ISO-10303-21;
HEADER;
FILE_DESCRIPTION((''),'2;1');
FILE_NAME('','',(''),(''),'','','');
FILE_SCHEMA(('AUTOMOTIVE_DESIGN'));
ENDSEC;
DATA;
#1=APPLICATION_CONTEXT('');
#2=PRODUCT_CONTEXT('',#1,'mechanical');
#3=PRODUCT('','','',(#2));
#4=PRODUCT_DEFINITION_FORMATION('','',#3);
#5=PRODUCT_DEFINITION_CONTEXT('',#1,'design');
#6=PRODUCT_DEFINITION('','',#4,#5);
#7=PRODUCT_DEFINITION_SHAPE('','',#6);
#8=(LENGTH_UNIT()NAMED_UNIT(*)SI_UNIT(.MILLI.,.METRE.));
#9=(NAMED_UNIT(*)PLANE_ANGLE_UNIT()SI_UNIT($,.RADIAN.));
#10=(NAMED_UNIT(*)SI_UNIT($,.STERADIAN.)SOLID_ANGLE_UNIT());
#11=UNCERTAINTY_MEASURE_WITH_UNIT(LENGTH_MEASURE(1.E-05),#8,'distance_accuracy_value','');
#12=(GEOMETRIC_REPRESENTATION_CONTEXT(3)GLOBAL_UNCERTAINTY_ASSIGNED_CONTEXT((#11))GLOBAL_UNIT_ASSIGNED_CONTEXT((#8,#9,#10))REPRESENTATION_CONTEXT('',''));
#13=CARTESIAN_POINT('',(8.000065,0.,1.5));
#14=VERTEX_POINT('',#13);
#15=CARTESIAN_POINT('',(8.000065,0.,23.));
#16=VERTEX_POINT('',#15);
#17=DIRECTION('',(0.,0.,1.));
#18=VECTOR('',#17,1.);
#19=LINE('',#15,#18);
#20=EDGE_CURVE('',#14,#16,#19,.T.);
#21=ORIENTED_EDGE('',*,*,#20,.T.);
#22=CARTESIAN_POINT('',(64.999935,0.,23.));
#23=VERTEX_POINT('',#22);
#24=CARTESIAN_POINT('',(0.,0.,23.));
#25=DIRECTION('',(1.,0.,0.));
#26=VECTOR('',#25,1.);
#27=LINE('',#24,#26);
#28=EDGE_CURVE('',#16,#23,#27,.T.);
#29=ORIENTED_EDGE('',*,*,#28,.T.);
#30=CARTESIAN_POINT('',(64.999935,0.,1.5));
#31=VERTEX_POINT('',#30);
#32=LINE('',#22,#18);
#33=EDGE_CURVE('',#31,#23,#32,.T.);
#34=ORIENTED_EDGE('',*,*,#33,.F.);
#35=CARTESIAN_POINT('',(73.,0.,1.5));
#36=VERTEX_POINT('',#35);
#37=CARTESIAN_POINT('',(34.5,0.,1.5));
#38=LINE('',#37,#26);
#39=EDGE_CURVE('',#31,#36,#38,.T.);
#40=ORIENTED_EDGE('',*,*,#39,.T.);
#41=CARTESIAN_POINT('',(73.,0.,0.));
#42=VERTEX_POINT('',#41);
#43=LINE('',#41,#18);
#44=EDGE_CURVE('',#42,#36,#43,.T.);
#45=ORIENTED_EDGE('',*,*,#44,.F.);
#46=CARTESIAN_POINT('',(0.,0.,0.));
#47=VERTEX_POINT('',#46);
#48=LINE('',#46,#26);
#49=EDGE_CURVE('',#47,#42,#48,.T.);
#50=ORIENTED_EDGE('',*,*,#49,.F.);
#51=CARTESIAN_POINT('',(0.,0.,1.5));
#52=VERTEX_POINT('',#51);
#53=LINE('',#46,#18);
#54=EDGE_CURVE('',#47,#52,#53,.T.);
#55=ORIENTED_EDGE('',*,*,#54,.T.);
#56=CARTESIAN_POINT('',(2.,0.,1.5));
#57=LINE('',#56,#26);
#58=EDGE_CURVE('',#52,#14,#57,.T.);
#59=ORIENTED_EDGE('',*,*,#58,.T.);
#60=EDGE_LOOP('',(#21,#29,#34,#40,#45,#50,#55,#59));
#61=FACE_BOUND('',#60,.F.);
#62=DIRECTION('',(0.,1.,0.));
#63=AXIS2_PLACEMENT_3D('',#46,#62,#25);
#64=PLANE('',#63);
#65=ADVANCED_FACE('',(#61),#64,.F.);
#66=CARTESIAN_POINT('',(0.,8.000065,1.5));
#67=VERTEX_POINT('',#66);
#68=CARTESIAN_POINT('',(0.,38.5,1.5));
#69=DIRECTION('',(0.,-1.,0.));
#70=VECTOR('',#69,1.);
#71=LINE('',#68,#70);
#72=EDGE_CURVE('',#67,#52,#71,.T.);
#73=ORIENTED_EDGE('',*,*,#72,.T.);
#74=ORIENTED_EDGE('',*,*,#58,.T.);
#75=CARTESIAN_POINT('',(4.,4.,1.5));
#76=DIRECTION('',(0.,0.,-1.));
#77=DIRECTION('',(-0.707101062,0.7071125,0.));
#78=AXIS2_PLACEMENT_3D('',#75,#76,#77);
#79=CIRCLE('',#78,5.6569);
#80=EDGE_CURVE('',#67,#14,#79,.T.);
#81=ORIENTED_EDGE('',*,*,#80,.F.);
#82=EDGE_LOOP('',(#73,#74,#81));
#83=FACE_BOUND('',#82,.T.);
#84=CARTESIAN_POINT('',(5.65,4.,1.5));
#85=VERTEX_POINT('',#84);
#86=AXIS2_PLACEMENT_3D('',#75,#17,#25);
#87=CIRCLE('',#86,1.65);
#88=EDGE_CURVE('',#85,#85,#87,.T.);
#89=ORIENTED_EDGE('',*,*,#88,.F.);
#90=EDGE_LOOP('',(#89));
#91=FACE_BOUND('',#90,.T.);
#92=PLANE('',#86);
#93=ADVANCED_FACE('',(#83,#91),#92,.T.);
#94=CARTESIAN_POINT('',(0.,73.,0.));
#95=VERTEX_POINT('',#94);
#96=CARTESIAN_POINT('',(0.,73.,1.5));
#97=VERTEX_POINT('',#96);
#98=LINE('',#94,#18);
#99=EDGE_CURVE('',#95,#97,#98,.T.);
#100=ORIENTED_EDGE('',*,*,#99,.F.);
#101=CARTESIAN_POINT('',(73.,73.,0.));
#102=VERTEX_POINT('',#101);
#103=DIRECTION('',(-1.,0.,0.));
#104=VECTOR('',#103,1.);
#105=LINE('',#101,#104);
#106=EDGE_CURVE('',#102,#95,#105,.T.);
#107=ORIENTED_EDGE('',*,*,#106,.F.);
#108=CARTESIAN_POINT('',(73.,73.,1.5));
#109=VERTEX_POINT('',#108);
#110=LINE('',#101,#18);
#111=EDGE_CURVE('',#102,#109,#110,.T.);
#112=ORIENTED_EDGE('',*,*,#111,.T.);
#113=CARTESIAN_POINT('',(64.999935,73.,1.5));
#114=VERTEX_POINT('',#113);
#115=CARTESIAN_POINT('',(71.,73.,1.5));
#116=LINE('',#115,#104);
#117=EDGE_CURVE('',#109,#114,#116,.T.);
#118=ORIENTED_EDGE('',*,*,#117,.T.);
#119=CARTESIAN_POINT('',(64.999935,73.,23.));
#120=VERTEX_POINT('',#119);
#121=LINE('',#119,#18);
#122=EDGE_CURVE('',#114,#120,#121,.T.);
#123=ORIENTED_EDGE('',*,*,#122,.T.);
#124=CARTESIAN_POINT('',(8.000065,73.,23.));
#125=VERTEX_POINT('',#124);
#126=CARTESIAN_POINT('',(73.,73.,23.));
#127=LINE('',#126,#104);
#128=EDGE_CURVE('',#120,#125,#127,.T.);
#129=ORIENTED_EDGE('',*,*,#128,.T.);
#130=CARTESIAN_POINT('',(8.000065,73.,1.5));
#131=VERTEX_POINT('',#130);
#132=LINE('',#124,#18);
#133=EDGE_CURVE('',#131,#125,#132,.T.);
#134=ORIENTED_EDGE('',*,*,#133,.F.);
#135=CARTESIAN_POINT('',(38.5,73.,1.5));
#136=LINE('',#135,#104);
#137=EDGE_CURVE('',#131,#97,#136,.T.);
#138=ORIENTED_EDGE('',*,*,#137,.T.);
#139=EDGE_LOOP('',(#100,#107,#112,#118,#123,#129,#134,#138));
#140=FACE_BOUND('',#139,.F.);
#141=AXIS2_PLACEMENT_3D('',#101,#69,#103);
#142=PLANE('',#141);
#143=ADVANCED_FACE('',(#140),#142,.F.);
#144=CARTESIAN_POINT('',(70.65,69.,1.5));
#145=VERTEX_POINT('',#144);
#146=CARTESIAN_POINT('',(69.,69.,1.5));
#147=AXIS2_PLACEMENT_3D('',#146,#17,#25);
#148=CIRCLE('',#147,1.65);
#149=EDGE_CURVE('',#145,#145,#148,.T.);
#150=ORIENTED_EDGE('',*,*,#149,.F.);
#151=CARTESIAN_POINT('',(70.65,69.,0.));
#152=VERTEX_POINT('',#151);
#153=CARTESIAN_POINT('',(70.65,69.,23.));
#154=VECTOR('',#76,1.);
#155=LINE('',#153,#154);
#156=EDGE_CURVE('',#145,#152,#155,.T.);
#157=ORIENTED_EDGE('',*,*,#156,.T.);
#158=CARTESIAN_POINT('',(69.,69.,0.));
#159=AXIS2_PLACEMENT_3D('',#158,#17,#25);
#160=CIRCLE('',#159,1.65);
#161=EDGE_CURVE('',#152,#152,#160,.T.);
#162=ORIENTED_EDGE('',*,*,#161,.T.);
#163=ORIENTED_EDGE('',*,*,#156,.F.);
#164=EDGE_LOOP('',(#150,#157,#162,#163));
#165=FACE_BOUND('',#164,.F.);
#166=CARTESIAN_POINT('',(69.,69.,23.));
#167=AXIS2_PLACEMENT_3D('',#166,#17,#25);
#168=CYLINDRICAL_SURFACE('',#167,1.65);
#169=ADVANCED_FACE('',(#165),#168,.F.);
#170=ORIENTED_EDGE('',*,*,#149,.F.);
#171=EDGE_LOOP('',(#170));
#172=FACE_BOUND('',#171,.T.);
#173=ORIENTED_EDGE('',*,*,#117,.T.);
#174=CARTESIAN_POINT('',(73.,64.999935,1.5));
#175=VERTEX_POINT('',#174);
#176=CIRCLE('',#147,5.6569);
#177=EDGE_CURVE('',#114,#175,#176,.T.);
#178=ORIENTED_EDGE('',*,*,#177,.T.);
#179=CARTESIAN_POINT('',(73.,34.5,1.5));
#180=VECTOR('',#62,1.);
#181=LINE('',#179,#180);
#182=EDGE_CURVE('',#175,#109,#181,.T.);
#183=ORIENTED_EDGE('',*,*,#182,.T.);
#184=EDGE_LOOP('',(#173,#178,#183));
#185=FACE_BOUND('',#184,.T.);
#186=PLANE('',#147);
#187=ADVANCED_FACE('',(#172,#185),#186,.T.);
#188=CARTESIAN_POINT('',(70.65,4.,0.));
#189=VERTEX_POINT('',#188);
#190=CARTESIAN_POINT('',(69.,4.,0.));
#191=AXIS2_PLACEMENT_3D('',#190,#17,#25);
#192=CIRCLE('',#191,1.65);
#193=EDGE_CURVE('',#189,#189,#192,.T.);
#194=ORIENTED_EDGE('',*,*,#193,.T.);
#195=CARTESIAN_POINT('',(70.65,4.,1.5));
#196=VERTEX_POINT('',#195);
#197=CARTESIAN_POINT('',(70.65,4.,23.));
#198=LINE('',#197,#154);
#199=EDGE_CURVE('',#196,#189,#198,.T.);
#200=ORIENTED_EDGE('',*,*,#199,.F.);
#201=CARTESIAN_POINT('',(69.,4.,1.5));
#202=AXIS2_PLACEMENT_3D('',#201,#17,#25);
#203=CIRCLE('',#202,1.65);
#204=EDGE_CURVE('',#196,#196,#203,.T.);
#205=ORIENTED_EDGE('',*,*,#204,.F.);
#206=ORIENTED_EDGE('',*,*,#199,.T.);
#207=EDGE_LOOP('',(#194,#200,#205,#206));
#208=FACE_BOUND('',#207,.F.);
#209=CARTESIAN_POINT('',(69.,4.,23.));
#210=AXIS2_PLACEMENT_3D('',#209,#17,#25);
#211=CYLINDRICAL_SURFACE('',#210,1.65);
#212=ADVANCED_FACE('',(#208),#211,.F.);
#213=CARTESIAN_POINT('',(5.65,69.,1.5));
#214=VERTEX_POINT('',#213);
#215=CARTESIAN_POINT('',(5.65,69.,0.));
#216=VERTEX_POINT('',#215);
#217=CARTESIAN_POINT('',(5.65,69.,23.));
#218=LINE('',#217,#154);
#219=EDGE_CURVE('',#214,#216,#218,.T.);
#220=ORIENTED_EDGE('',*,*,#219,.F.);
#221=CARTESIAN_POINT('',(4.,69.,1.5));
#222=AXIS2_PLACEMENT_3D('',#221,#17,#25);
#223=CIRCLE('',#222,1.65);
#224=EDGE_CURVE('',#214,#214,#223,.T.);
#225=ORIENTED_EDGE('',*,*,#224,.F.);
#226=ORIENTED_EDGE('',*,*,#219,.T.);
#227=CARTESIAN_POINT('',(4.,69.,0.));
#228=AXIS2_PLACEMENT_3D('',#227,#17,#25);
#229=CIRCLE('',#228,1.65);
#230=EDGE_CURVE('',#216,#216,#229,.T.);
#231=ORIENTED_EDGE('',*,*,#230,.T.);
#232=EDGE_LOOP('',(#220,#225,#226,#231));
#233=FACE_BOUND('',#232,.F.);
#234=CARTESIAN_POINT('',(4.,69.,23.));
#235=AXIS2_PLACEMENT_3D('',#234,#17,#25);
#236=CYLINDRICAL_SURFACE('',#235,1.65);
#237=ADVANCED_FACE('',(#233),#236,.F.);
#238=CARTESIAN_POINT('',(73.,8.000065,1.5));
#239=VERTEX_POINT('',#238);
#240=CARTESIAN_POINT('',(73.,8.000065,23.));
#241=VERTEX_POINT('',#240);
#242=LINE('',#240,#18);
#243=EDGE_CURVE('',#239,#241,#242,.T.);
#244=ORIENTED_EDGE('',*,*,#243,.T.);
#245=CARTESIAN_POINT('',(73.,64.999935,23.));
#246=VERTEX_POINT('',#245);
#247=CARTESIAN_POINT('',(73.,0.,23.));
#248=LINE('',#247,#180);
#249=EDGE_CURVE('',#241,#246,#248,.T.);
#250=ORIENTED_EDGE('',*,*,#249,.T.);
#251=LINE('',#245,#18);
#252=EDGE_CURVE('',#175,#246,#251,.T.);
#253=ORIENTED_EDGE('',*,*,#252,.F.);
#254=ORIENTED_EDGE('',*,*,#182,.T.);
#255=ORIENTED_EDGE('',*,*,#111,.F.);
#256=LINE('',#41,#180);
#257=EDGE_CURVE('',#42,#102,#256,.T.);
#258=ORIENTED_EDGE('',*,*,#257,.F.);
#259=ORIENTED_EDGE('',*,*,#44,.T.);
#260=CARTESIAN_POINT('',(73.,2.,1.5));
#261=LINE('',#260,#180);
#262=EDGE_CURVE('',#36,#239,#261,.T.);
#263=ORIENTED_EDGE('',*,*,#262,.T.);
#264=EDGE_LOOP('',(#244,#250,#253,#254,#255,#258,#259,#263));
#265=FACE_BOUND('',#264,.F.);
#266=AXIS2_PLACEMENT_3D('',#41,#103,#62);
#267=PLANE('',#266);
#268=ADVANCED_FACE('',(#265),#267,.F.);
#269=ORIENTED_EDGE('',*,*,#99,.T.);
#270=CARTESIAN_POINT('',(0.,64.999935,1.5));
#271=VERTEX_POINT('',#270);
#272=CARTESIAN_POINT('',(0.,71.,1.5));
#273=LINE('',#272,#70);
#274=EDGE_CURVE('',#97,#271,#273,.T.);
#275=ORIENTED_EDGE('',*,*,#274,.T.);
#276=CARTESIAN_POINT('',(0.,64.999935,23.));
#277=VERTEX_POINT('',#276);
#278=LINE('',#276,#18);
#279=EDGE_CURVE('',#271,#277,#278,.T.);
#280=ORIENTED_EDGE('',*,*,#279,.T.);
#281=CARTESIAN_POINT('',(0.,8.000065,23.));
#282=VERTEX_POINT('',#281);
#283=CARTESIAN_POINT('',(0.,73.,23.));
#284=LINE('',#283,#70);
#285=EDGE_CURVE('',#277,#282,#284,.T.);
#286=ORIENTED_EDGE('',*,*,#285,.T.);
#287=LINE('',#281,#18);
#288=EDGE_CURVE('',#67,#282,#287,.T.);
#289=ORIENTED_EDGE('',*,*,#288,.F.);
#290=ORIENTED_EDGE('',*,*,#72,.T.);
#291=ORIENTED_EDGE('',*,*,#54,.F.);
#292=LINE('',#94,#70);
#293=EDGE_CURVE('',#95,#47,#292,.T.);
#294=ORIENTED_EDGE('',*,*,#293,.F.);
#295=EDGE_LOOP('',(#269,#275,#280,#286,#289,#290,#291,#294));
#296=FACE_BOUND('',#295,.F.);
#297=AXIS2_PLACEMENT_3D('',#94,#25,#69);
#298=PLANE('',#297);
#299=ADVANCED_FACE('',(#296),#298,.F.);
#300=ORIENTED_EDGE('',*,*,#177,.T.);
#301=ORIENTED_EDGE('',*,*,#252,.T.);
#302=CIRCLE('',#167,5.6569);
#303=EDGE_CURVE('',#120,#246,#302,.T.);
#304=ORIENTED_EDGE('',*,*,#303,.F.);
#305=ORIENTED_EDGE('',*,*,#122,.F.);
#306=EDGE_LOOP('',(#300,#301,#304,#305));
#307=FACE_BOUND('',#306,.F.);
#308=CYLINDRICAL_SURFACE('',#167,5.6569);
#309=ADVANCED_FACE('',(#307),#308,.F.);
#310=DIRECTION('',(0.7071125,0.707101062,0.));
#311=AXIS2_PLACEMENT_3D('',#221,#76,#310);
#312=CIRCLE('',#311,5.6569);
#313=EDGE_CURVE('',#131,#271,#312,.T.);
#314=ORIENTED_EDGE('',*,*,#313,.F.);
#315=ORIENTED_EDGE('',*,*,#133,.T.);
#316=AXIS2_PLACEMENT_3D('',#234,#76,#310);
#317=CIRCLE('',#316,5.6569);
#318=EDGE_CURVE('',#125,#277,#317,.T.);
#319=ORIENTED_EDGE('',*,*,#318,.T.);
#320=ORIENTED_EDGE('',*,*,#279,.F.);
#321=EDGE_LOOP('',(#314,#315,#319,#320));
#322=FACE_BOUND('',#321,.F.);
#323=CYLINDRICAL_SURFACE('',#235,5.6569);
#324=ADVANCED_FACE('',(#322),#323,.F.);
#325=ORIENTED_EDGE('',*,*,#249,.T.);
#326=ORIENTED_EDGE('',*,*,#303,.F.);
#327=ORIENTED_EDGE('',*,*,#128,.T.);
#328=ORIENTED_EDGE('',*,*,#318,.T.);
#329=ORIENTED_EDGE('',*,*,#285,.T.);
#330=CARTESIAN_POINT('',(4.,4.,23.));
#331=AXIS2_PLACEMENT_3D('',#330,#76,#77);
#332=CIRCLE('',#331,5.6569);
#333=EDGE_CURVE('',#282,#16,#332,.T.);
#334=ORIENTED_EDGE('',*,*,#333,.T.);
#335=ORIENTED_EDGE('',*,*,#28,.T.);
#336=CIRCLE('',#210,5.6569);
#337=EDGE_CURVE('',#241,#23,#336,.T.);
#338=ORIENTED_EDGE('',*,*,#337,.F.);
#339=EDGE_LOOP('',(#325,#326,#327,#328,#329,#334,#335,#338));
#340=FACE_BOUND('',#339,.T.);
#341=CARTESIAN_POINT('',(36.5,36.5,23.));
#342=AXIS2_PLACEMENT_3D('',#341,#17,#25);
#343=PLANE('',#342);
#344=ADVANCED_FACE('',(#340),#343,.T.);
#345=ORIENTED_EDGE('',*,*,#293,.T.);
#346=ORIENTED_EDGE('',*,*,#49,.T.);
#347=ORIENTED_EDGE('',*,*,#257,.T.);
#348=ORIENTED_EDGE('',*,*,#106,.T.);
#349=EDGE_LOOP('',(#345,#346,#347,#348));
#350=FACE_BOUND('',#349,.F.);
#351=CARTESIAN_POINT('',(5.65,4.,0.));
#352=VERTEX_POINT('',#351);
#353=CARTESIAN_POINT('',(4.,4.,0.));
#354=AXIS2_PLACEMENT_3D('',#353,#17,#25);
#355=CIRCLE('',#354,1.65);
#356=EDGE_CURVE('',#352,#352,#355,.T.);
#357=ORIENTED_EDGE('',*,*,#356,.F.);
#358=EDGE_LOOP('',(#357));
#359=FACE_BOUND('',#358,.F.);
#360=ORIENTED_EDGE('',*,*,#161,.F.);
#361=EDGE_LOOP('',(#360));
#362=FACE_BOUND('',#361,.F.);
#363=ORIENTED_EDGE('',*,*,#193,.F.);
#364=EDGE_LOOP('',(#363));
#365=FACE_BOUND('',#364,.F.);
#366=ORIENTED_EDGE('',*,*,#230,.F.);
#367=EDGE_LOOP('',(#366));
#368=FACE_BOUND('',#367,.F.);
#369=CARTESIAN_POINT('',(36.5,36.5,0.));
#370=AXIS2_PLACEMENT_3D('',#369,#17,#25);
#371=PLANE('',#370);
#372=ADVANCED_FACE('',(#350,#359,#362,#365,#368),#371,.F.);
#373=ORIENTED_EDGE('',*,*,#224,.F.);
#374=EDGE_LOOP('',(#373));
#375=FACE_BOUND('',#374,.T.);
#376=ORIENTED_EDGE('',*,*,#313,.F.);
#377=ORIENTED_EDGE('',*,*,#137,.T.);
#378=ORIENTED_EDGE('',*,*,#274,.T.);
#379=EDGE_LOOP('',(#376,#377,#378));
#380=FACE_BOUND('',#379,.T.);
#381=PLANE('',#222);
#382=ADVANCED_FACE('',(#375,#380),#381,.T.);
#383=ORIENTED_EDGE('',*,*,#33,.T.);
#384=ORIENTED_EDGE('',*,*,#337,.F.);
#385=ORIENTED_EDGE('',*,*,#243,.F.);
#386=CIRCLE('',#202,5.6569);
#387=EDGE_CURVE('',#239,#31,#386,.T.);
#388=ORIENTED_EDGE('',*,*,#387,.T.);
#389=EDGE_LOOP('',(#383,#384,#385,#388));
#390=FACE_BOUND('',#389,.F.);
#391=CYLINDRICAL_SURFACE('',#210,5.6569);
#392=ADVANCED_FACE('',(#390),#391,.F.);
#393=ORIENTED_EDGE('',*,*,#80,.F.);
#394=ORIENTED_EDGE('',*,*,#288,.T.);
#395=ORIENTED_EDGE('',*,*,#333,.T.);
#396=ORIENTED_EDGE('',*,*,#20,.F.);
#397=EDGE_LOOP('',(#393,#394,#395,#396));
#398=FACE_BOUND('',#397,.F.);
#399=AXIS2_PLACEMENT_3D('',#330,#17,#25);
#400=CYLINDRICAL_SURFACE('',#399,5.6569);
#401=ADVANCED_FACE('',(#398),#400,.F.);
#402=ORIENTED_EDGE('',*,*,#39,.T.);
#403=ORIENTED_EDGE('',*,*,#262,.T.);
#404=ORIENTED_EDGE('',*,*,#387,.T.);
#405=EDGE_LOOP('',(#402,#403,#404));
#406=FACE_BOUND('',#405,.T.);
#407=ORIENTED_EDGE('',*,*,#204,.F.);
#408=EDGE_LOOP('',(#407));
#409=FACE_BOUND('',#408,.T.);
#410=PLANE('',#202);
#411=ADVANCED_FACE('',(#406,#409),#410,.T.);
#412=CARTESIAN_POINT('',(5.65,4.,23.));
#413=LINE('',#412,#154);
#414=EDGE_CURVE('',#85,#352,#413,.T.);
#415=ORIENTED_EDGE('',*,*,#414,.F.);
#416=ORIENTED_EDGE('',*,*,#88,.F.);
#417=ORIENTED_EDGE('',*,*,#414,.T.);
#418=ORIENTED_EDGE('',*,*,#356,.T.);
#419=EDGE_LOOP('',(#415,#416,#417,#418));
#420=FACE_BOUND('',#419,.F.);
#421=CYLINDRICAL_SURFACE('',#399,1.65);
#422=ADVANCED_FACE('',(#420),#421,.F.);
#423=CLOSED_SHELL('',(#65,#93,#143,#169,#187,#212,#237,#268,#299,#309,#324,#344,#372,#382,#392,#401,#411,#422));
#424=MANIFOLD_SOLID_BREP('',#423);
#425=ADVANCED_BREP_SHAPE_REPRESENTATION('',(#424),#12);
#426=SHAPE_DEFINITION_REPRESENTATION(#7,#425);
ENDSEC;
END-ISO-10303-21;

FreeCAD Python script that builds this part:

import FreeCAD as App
import Part
import Sketcher
from FreeCAD import Vector


def add_polygon(sketch, points):
    """Adds a closed chain of lines whose ends are joined by coincident constraints."""
    first, n = sketch.GeometryCount, len(points)
    for a, b in zip(points, points[1:] + points[:1]):
        sketch.addGeometry(Part.LineSegment(App.Vector(*a, 0), App.Vector(*b, 0)), False)
    for i in range(n):
        sketch.addConstraint(Sketcher.Constraint("Coincident", first + i, 2, first + (i + 1) % n, 1))

doc = App.newDocument("Part")
body = doc.addObject("PartDesign::Body", "Body")

# Sketch on XY plane
sketch1 = body.newObject("Sketcher::SketchObject", "Sketch")
sketch1.AttachmentSupport = (doc.getObject("XY_Plane"), [""])
sketch1.MapMode = "FlatFace"
add_polygon(sketch1, [(0, 73), (0, 0), (73, 0), (73, 73)])  # lines 0-3
sketch1.addConstraint([
    Sketcher.Constraint("Vertical", 0),
    Sketcher.Constraint("Horizontal", 1),
    Sketcher.Constraint("Vertical", 2),
    Sketcher.Constraint("Horizontal", 3),
    Sketcher.Constraint("Coincident", 0, 2, -1, 1),
    Sketcher.Constraint("Equal", 3, 0),
    Sketcher.Constraint("DistanceX", 1, 1, 1, 2, 73.0),
])
pad1 = body.newObject("PartDesign::Pad", "Pad")
pad1.Profile = sketch1
pad1.Length = 23

# Sketch on XY plane
sketch2 = body.newObject("Sketcher::SketchObject", "Sketch001")
sketch2.AttachmentSupport = (doc.getObject("XY_Plane"), [""])
sketch2.MapMode = "FlatFace"
sketch2.AttachmentOffset = App.Placement(Vector(0, 0, 23), App.Rotation())
sketch2.addGeometry([
    Part.Circle(Vector(69, 69, 0), Vector(0, 0, 1), 1.65),
    Part.Circle(Vector(69, 4, 0), Vector(0, 0, 1), 1.65),
    Part.Circle(Vector(4, 4, 0), Vector(0, 0, 1), 1.65),
    Part.Circle(Vector(4, 69, 0), Vector(0, 0, 1), 1.65),
], False)
sketch2.addConstraint([
    Sketcher.Constraint("Equal", 0, 1),
    Sketcher.Constraint("Equal", 1, 2),
    Sketcher.Constraint("Equal", 2, 3),
    Sketcher.Constraint("Horizontal", 1, 3, 2, 3),
    Sketcher.Constraint("Horizontal", 0, 3, 3, 3),
    Sketcher.Constraint("Vertical", 0, 3, 1, 3),
    Sketcher.Constraint("Vertical", 2, 3, 3, 3),
    Sketcher.Constraint("Diameter", 0, 3.3),
    Sketcher.Constraint("DistanceX", -1, 1, 0, 3, 69.0),
    Sketcher.Constraint("DistanceY", -1, 1, 0, 3, 69.0),
    Sketcher.Constraint("DistanceY", -1, 1, 1, 3, 4.0),
    Sketcher.Constraint("DistanceX", -1, 1, 2, 3, 4.0),
])
pocket1 = body.newObject("PartDesign::Pocket", "Pocket")
pocket1.Profile = sketch2
pocket1.Length = 23

# Sketch on XY plane
sketch3 = body.newObject("Sketcher::SketchObject", "Sketch002")
sketch3.AttachmentSupport = (doc.getObject("XY_Plane"), [""])
sketch3.MapMode = "FlatFace"
sketch3.AttachmentOffset = App.Placement(Vector(0, 0, 23), App.Rotation())
sketch3.addGeometry([
    Part.Circle(Vector(69, 69, 0), Vector(0, 0, 1), 5.6569),
    Part.Circle(Vector(4, 4, 0), Vector(0, 0, 1), 5.6569),
    Part.Circle(Vector(69, 4, 0), Vector(0, 0, 1), 5.6569),
    Part.Circle(Vector(4, 69, 0), Vector(0, 0, 1), 5.6569),
], False)
sketch3.addConstraint([
    Sketcher.Constraint("Equal", 0, 1),
    Sketcher.Constraint("Equal", 1, 2),
    Sketcher.Constraint("Equal", 2, 3),
    Sketcher.Constraint("Horizontal", 1, 3, 2, 3),
    Sketcher.Constraint("Horizontal", 0, 3, 3, 3),
    Sketcher.Constraint("Vertical", 0, 3, 2, 3),
    Sketcher.Constraint("Vertical", 1, 3, 3, 3),
    Sketcher.Constraint("DistanceX", -1, 1, 0, 3, 69.0),
    Sketcher.Constraint("DistanceY", -1, 1, 0, 3, 69.0),
    Sketcher.Constraint("DistanceX", -1, 1, 1, 3, 4.0),
    Sketcher.Constraint("DistanceY", -1, 1, 1, 3, 4.0),
    Sketcher.Constraint("Diameter", 0, 11.3138),
])
pocket2 = body.newObject("PartDesign::Pocket", "Pocket001")
pocket2.Profile = sketch3
pocket2.Length = 21.5

doc.recompute()
